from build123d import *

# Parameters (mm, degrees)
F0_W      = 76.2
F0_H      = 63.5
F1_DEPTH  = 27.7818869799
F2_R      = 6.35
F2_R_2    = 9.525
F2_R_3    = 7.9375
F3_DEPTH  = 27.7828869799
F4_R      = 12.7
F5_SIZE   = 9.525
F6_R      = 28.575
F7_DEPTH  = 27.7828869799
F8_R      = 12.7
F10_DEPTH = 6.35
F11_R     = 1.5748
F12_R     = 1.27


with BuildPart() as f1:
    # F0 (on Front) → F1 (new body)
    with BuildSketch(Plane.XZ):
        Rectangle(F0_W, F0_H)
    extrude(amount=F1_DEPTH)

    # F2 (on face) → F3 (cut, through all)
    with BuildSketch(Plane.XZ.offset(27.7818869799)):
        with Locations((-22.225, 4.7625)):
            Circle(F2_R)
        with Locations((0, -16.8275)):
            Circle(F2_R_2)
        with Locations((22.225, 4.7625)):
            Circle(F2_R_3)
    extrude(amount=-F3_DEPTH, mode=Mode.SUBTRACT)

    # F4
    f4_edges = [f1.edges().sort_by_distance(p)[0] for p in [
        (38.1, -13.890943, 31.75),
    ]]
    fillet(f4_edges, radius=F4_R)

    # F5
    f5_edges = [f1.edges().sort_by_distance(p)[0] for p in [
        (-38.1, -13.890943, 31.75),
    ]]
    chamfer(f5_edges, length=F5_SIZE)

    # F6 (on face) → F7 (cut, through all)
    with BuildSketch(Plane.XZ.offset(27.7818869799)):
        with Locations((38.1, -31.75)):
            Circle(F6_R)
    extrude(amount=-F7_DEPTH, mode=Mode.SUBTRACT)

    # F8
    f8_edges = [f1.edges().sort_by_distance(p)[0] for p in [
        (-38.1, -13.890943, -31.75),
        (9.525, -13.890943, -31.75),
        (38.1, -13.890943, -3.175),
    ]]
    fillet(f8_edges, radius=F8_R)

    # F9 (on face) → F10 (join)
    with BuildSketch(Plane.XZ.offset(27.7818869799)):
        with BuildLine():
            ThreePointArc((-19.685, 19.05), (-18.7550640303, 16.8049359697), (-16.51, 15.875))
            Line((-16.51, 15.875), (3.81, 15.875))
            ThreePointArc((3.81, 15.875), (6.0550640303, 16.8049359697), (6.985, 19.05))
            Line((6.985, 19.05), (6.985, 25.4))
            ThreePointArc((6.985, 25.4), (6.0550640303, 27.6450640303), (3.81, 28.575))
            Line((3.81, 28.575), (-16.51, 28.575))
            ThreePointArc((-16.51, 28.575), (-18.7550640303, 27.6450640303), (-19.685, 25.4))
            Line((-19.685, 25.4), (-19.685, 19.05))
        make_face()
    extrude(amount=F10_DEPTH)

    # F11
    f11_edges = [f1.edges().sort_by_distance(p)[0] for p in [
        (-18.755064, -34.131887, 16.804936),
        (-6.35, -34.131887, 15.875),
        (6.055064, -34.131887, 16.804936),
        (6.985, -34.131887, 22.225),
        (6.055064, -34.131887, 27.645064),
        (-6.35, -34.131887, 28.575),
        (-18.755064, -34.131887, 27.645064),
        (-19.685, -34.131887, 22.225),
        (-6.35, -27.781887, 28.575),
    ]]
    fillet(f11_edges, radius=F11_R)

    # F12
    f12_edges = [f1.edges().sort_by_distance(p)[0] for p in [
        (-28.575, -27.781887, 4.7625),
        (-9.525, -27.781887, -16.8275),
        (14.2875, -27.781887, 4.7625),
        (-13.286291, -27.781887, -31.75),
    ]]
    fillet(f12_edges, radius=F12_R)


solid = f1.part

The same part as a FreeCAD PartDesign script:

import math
import FreeCAD as App
import Part
import Sketcher

V = App.Vector
Q = App.Units.Quantity


def edges_at(feature, points):
    """Names of the edges that pass closest to the given points."""
    edges = feature.Shape.Edges
    near = lambda p: min(range(len(edges)), key=lambda i: edges[i].distToShape(Part.Vertex(*p))[0])
    return sorted({f"Edge{near(p) + 1}" for p in points})


def add_polygon(sketch, points):
    """Adds a closed chain of lines whose ends are joined by coincident constraints."""
    first, n = sketch.GeometryCount, len(points)
    for a, b in zip(points, points[1:] + points[:1]):
        sketch.addGeometry(Part.LineSegment(App.Vector(*a, 0), App.Vector(*b, 0)), False)
    for i in range(n):
        sketch.addConstraint(Sketcher.Constraint("Coincident", first + i, 2, first + (i + 1) % n, 1))

doc = App.newDocument("Part")
body = doc.addObject("PartDesign::Body", "Body")

# Sketch on XZ plane
sketch1 = body.newObject("Sketcher::SketchObject", "Sketch")
sketch1.AttachmentSupport = (doc.getObject("XZ_Plane"), [""])
sketch1.MapMode = "FlatFace"
add_polygon(sketch1, [(-38, 32), (-38, -32), (38, -32), (38, 32)])  # lines 0-3
sketch1.addConstraint(Sketcher.Constraint("Vertical", 0))
sketch1.addConstraint(Sketcher.Constraint("Horizontal", 1))
sketch1.addConstraint(Sketcher.Constraint("Vertical", 2))
sketch1.addConstraint(Sketcher.Constraint("Horizontal", 3))
sketch1.addConstraint(Sketcher.Constraint("Symmetric", 0, 2, 2, 2, -1, 1))
sketch1.addConstraint(Sketcher.Constraint("DistanceX", 1, 1, 1, 2, Q("3 in")))
sketch1.addConstraint(Sketcher.Constraint("DistanceY", 0, 2, 0, 1, Q("2.5 in")))
pad1 = body.newObject("PartDesign::Pad", "Pad")
pad1.Profile = sketch1
pad1.Length = 27.781887

# Sketch on XZ plane
sketch2 = body.newObject("Sketcher::SketchObject", "Sketch001")
sketch2.AttachmentSupport = (doc.getObject("XZ_Plane"), [""])
sketch2.MapMode = "FlatFace"
sketch2.AttachmentOffset = App.Placement(V(0, 0, 27.781887), App.Rotation())
sketch2.addGeometry(Part.Circle(V(-22, 5, 0), V(0, 0, 1), 6), False)
sketch2.addGeometry(Part.Circle(V(0, -17, 0), V(0, 0, 1), 10), False)
sketch2.addGeometry(Part.Circle(V(22, 5, 0), V(0, 0, 1), 8), False)
sketch2.addConstraint(Sketcher.Constraint("Symmetric", 0, 3, 2, 3, -2))
sketch2.addConstraint(Sketcher.Constraint("PointOnObject", 1, 3, -2))
sketch2.addConstraint(Sketcher.Constraint("Diameter", 0, Q("0.5 in")))
sketch2.addConstraint(Sketcher.Constraint("Diameter", 1, Q("0.75 in")))
sketch2.addConstraint(Sketcher.Constraint("Diameter", 2, Q("0.625 in")))
sketch2.addConstraint(Sketcher.Constraint("DistanceY", 1, 3, 0, 3, Q("0.85 in")))
sketch2.addConstraint(Sketcher.Constraint("DistanceX", 0, 3, 2, 3, Q("1.75 in")))
sketch2.addConstraint(Sketcher.Constraint("DistanceY", -1, 1, 0, 3, Q("0.1875 in")))
pocket1 = body.newObject("PartDesign::Pocket", "Pocket")
pocket1.Profile = sketch2
pocket1.Type = "ThroughAll"
doc.recompute()

fillet = body.newObject("PartDesign::Fillet", "Fillet")
fillet.Base = (pocket1, edges_at(pocket1, [(38.1, -13.891, 31.75)]))
fillet.Radius = Q("0.5 in")
doc.recompute()

chamfer = body.newObject("PartDesign::Chamfer", "Chamfer")
chamfer.Base = (fillet, edges_at(fillet, [(-38.1, -13.891, 31.75)]))
chamfer.Size = Q("0.375 in")

# Sketch on XZ plane
sketch3 = body.newObject("Sketcher::SketchObject", "Sketch002")
sketch3.AttachmentSupport = (doc.getObject("XZ_Plane"), [""])
sketch3.MapMode = "FlatFace"
sketch3.AttachmentOffset = App.Placement(V(0, 0, 27.781887), App.Rotation())
sketch3.addGeometry(Part.Circle(V(38, -32, 0), V(0, 0, 1), 29), False)
sketch3.addConstraint(Sketcher.Constraint("Diameter", 0, Q("2.25 in")))
sketch3.addConstraint(Sketcher.Constraint("DistanceX", -1, 1, 0, 3, Q("1.5 in")))
sketch3.addConstraint(Sketcher.Constraint("DistanceY", 0, 3, -1, 1, Q("1.25 in")))
pocket2 = body.newObject("PartDesign::Pocket", "Pocket001")
pocket2.Profile = sketch3
pocket2.Type = "ThroughAll"
doc.recompute()

fillet2 = body.newObject("PartDesign::Fillet", "Fillet001")
fillet2.Base = (pocket2, edges_at(pocket2, [(-38.1, -13.891, -31.75), (9.525, -13.891, -31.75), (38.1, -13.891, -3.175)]))
fillet2.Radius = Q("0.5 in")

# Sketch on XZ plane
sketch4 = body.newObject("Sketcher::SketchObject", "Sketch003")
sketch4.AttachmentSupport = (doc.getObject("XZ_Plane"), [""])
sketch4.MapMode = "FlatFace"
sketch4.AttachmentOffset = App.Placement(V(0, 0, 27.781887), App.Rotation())
sketch4.addGeometry(Part.ArcOfCircle(Part.Circle(V(-16.5, 19.1, 0), V(0, 0, 1), 3.2), math.radians(180), math.radians(270)), False)
sketch4.addGeometry(Part.LineSegment(V(-16.5, 15.9, 0), V(3.8, 15.9, 0)), False)
sketch4.addGeometry(Part.ArcOfCircle(Part.Circle(V(3.8, 19.1, 0), V(0, 0, 1), 3.2), math.radians(-90), math.radians(0)), False)
sketch4.addGeometry(Part.LineSegment(V(7, 19.1, 0), V(7, 25.4, 0)), False)
sketch4.addGeometry(Part.ArcOfCircle(Part.Circle(V(3.8, 25.4, 0), V(0, 0, 1), 3.2), math.radians(0), math.radians(90)), False)
sketch4.addGeometry(Part.LineSegment(V(3.8, 28.6, 0), V(-16.5, 28.6, 0)), False)
sketch4.addGeometry(Part.ArcOfCircle(Part.Circle(V(-16.5, 25.4, 0), V(0, 0, 1), 3.2), math.radians(90), math.radians(180)), False)
sketch4.addGeometry(Part.LineSegment(V(-19.7, 25.4, 0), V(-19.7, 19.1, 0)), False)
sketch4.addConstraint(Sketcher.Constraint("Tangent", 0, 2, 1, 1))
sketch4.addConstraint(Sketcher.Constraint("Tangent", 1, 2, 2, 1))
sketch4.addConstraint(Sketcher.Constraint("Tangent", 2, 2, 3, 1))
sketch4.addConstraint(Sketcher.Constraint("Tangent", 3, 2, 4, 1))
sketch4.addConstraint(Sketcher.Constraint("Tangent", 4, 2, 5, 1))
sketch4.addConstraint(Sketcher.Constraint("Tangent", 5, 2, 6, 1))
sketch4.addConstraint(Sketcher.Constraint("Tangent", 6, 2, 7, 1))
sketch4.addConstraint(Sketcher.Constraint("Tangent", 7, 2, 0, 1))
sketch4.addConstraint(Sketcher.Constraint("Horizontal", 1))
sketch4.addConstraint(Sketcher.Constraint("Vertical", 3))
sketch4.addConstraint(Sketcher.Constraint("Horizontal", 5))
sketch4.addConstraint(Sketcher.Constraint("Vertical", 7))
sketch4.addConstraint(Sketcher.Constraint("Equal", 0, 2))
sketch4.addConstraint(Sketcher.Constraint("Equal", 2, 4))
sketch4.addConstraint(Sketcher.Constraint("Equal", 4, 6))
sketch4.addConstraint(Sketcher.Constraint("DistanceX", 1, 1, 1, 2, Q("0.8 in")))
sketch4.addConstraint(Sketcher.Constraint("DistanceY", -1, 1, 4, 3, Q("1 in")))
sketch4.addConstraint(Sketcher.Constraint("Radius", 0, Q("0.125 in")))
sketch4.addConstraint(Sketcher.Constraint("DistanceY", 3, 1, 3, 2, Q("0.25 in")))
sketch4.addConstraint(Sketcher.Constraint("DistanceX", 0, 3, -1, 1, Q("0.65 in")))
pad2 = body.newObject("PartDesign::Pad", "Pad001")
pad2.Profile = sketch4
pad2.Length = Q("0.25 in")
doc.recompute()

fillet3 = body.newObject("PartDesign::Fillet", "Fillet002")
fillet3.Base = (pad2, edges_at(pad2, [
    (-18.755, -34.132, 16.805),
    (-6.35, -34.132, 15.875),
    (6.055, -34.132, 16.805),
    (6.985, -34.132, 22.225),
    (6.055, -34.132, 27.645),
    (-6.35, -34.132, 28.575),
    (-18.755, -34.132, 27.645),
    (-19.685, -34.132, 22.225),
    (-6.35, -27.782, 28.575),
]))
fillet3.Radius = Q("0.062 in")
doc.recompute()

fillet4 = body.newObject("PartDesign::Fillet", "Fillet003")
fillet4.Base = (fillet3, edges_at(fillet3, [
    (-28.575, -27.782, 4.763),
    (-9.525, -27.782, -16.828),
    (14.287, -27.782, 4.763),
    (-13.286, -27.782, -31.75),
]))
fillet4.Radius = Q("0.05 in")

doc.recompute()
